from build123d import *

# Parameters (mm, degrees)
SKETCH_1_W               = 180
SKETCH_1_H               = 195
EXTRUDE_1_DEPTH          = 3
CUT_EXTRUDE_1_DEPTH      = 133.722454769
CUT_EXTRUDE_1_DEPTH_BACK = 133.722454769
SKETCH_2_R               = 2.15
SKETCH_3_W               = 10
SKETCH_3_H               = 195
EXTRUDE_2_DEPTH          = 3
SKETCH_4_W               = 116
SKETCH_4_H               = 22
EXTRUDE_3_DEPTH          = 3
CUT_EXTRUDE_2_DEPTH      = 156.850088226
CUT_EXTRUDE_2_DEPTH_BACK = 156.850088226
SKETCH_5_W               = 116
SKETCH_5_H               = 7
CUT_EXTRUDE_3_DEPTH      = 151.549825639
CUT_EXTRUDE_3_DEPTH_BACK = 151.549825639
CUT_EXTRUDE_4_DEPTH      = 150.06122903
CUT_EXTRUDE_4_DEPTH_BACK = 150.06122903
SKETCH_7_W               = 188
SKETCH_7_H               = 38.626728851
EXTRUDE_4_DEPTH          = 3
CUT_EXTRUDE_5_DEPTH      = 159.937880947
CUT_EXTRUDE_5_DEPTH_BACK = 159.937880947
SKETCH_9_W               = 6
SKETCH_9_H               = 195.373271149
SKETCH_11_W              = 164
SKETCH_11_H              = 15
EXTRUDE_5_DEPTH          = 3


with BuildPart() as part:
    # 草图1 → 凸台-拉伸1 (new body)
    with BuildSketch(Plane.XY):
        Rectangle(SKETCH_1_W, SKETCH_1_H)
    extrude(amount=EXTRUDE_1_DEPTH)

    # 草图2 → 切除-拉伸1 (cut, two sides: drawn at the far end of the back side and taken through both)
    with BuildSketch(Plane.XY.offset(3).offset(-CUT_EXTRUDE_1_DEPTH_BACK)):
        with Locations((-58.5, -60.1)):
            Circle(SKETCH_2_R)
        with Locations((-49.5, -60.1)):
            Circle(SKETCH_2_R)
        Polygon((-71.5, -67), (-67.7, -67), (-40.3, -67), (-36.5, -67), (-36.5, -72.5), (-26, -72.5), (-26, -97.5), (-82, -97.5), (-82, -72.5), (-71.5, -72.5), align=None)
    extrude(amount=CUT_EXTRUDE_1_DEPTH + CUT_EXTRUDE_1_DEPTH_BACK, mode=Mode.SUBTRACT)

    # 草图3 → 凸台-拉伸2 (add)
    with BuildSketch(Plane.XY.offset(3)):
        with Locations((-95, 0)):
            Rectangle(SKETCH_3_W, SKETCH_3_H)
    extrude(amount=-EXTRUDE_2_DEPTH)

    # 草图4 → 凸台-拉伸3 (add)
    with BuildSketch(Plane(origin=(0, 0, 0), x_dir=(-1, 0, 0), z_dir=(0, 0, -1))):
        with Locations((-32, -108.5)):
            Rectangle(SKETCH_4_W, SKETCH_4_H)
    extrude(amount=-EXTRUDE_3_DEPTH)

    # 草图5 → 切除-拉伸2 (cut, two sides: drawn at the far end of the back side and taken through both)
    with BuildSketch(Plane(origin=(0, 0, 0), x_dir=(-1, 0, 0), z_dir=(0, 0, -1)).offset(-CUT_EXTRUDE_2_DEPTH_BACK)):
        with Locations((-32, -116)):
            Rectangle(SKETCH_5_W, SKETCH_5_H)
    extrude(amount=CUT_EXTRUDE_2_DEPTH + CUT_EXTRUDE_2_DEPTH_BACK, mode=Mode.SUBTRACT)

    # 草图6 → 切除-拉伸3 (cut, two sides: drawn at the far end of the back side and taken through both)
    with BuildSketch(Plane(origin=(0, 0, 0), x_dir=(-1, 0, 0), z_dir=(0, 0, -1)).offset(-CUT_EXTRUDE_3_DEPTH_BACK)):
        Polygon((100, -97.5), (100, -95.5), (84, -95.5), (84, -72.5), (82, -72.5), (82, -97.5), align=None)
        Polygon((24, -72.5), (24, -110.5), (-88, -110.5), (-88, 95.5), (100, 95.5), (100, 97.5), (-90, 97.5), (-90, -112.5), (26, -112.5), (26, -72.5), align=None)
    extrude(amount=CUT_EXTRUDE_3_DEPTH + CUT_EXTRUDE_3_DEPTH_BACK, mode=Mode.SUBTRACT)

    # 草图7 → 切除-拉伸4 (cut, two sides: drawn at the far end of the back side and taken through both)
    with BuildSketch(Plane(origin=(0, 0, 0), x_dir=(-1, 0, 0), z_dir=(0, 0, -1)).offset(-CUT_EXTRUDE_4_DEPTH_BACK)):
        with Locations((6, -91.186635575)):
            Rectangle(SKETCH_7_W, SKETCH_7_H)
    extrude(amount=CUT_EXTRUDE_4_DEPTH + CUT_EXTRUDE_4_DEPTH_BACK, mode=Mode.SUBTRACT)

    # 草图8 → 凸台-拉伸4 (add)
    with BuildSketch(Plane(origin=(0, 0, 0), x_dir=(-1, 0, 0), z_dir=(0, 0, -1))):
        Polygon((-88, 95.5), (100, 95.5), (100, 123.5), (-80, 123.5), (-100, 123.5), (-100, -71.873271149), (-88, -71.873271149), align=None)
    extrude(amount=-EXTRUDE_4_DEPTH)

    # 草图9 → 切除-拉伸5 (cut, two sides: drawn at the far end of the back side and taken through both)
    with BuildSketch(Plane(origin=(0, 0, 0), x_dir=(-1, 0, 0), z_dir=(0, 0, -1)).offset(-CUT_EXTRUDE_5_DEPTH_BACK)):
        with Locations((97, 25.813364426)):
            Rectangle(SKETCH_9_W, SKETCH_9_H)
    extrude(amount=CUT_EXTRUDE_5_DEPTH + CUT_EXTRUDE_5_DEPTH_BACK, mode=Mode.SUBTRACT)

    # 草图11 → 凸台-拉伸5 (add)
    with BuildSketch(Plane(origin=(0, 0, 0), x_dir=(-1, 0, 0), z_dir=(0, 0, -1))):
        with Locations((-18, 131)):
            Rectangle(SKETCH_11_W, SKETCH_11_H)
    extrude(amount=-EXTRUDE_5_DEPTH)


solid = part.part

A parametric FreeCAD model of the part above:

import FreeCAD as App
import Part
import Sketcher
from FreeCAD import Vector
Q = App.Units.Quantity


def add_polygon(sketch, points):
    """Adds a closed chain of lines whose ends are joined by coincident constraints."""
    first, n = sketch.GeometryCount, len(points)
    for a, b in zip(points, points[1:] + points[:1]):
        sketch.addGeometry(Part.LineSegment(App.Vector(*a, 0), App.Vector(*b, 0)), False)
    for i in range(n):
        sketch.addConstraint(Sketcher.Constraint("Coincident", first + i, 2, first + (i + 1) % n, 1))

doc = App.newDocument("Part")
body = doc.addObject("PartDesign::Body", "Body")

# Sketch on XY plane
sketch1 = doc.addObject("Sketcher::SketchObject", "Sketch")
body.addObject(sketch1)
sketch1.AttachmentSupport = (doc.XY_Plane, [""])
sketch1.MapMode = "FlatFace"
add_polygon(sketch1, [(-90, 98), (-90, -98), (90, -98), (90, 98)])  # lines 0-3
sketch1.addConstraint(Sketcher.Constraint("Vertical", 0))
sketch1.addConstraint(Sketcher.Constraint("Horizontal", 1))
sketch1.addConstraint(Sketcher.Constraint("Vertical", 2))
sketch1.addConstraint(Sketcher.Constraint("Horizontal", 3))
sketch1.addConstraint(Sketcher.Constraint("Symmetric", 0, 2, 2, 2, -1, 1))
sketch1.addConstraint(Sketcher.Constraint("DistanceX", 1, 1, 1, 2, Q("180 mm")))
sketch1.addConstraint(Sketcher.Constraint("DistanceY", 0, 2, 0, 1, Q("195 mm")))
pad1 = doc.addObject("PartDesign::Pad", "Pad")
body.addObject(pad1)
pad1.Profile = sketch1
pad1.Length = 3

# Sketch on XY plane
sketch2 = doc.addObject("Sketcher::SketchObject", "Sketch001")
body.addObject(sketch2)
sketch2.AttachmentSupport = (doc.XY_Plane, [""])
sketch2.MapMode = "FlatFace"
sketch2.AttachmentOffset = App.Placement(Vector(0, 0, 3), App.Rotation())
sketch2.addGeometry(Part.Circle(Vector(-58.5, -60.1, 0), Vector(0, 0, 1), 2.1), False)  # 0
sketch2.addGeometry(Part.Circle(Vector(-49.5, -60.1, 0), Vector(0, 0, 1), 2.1), False)  # 1
add_polygon(sketch2, [(-36.5, -67), (-71.5, -67), (-71.5, -72.5), (-82, -72.5), (-82, -97.5), (-26, -97.5), (-26, -72.5), (-36.5, -72.5)])  # lines 2-9
sketch2.addConstraint(Sketcher.Constraint("Horizontal", 2))
sketch2.addConstraint(Sketcher.Constraint("Vertical", 3))
sketch2.addConstraint(Sketcher.Constraint("Horizontal", 4))
sketch2.addConstraint(Sketcher.Constraint("Vertical", 5))
sketch2.addConstraint(Sketcher.Constraint("Horizontal", 6))
sketch2.addConstraint(Sketcher.Constraint("Vertical", 7))
sketch2.addConstraint(Sketcher.Constraint("Horizontal", 8))
sketch2.addConstraint(Sketcher.Constraint("Vertical", 9))
sketch2.addConstraint(Sketcher.Constraint("Equal", 0, 1))
sketch2.addConstraint(Sketcher.Constraint("Horizontal", 0, 3, 1, 3))
sketch2.addConstraint(Sketcher.Constraint("Horizontal", 4, 2, 7, 2))
sketch2.addConstraint(Sketcher.Constraint("Equal", 4, 8))
sketch2.addConstraint(Sketcher.Constraint("Diameter", 0, Q("4.3 mm")))
sketch2.addConstraint(Sketcher.Constraint("DistanceX", 2, 2, 2, 1, Q("35 mm")))
sketch2.addConstraint(Sketcher.Constraint("DistanceX", 6, 1, 6, 2, Q("56 mm")))
sketch2.addConstraint(Sketcher.Constraint("DistanceY", 5, 2, 5, 1, Q("25 mm")))
sketch2.addConstraint(Sketcher.Constraint("DistanceY", 3, 2, 3, 1, Q("5.5 mm")))
sketch2.addConstraint(Sketcher.Constraint("DistanceY", 2, 2, -1, 1, Q("67 mm")))
sketch2.addConstraint(Sketcher.Constraint("DistanceX", 4, 2, -1, 1, Q("82 mm")))
sketch2.addConstraint(Sketcher.Constraint("DistanceX", 0, 3, 1, 3, Q("9 mm")))
sketch2.addConstraint(Sketcher.Constraint("DistanceX", 2, 2, 0, 3, Q("13 mm")))
sketch2.addConstraint(Sketcher.Constraint("DistanceY", 0, 3, -1, 1, Q("60.1 mm")))
pocket1 = doc.addObject("PartDesign::Pocket", "Pocket")
body.addObject(pocket1)
pocket1.Profile = sketch2
pocket1.Type = "ThroughAll"
pocket1.Midplane = True

# Sketch on XY plane
sketch3 = doc.addObject("Sketcher::SketchObject", "Sketch002")
body.addObject(sketch3)
sketch3.AttachmentSupport = (doc.XY_Plane, [""])
sketch3.MapMode = "FlatFace"
sketch3.AttachmentOffset = App.Placement(Vector(0, 0, 3), App.Rotation())
add_polygon(sketch3, [(-100, 98), (-100, -98), (-90, -98), (-90, 98)])  # lines 0-3
sketch3.addConstraint(Sketcher.Constraint("Vertical", 0))
sketch3.addConstraint(Sketcher.Constraint("Horizontal", 1))
sketch3.addConstraint(Sketcher.Constraint("Vertical", 2))
sketch3.addConstraint(Sketcher.Constraint("Horizontal", 3))
sketch3.addConstraint(Sketcher.Constraint("DistanceX", 1, 1, 1, 2, Q("10 mm")))
sketch3.addConstraint(Sketcher.Constraint("DistanceY", 0, 2, 0, 1, Q("195 mm")))
sketch3.addConstraint(Sketcher.Constraint("DistanceX", 0, 2, -1, 1, Q("100 mm")))
sketch3.addConstraint(Sketcher.Constraint("DistanceY", 0, 2, -1, 1, Q("97.5 mm")))
pad2 = doc.addObject("PartDesign::Pad", "Pad001")
body.addObject(pad2)
pad2.Profile = sketch3
pad2.Length = 3
pad2.Reversed = True

# Sketch on XY plane
sketch4 = doc.addObject("Sketcher::SketchObject", "Sketch003")
body.addObject(sketch4)
sketch4.AttachmentSupport = (doc.XY_Plane, [""])
sketch4.MapMode = "FlatFace"
add_polygon(sketch4, [(90, -98), (90, -120), (-26, -120), (-26, -98)])  # lines 0-3
sketch4.addConstraint(Sketcher.Constraint("Vertical", 0))
sketch4.addConstraint(Sketcher.Constraint("Horizontal", 1))
sketch4.addConstraint(Sketcher.Constraint("Vertical", 2))
sketch4.addConstraint(Sketcher.Constraint("Horizontal", 3))
sketch4.addConstraint(Sketcher.Constraint("DistanceX", 1, 2, 1, 1, Q("116 mm")))
sketch4.addConstraint(Sketcher.Constraint("DistanceY", 0, 2, 0, 1, Q("22 mm")))
sketch4.addConstraint(Sketcher.Constraint("DistanceX", -1, 1, 0, 2, Q("90 mm")))
sketch4.addConstraint(Sketcher.Constraint("DistanceY", 0, 2, -1, 1, Q("119.5 mm")))
pad3 = doc.addObject("PartDesign::Pad", "Pad002")
body.addObject(pad3)
pad3.Profile = sketch4
pad3.Length = 3

# Sketch on XY plane
sketch5 = doc.addObject("Sketcher::SketchObject", "Sketch004")
body.addObject(sketch5)
sketch5.AttachmentSupport = (doc.XY_Plane, [""])
sketch5.MapMode = "FlatFace"
add_polygon(sketch5, [(90, -112), (90, -120), (-26, -120), (-26, -112)])  # lines 0-3
sketch5.addConstraint(Sketcher.Constraint("Vertical", 0))
sketch5.addConstraint(Sketcher.Constraint("Horizontal", 1))
sketch5.addConstraint(Sketcher.Constraint("Vertical", 2))
sketch5.addConstraint(Sketcher.Constraint("Horizontal", 3))
sketch5.addConstraint(Sketcher.Constraint("DistanceX", 1, 2, 1, 1, Q("116 mm")))
sketch5.addConstraint(Sketcher.Constraint("DistanceY", 0, 2, 0, 1, Q("7 mm")))
sketch5.addConstraint(Sketcher.Constraint("DistanceX", -1, 1, 0, 2, Q("90 mm")))
sketch5.addConstraint(Sketcher.Constraint("DistanceY", 0, 2, -1, 1, Q("119.5 mm")))
pocket2 = doc.addObject("PartDesign::Pocket", "Pocket001")
body.addObject(pocket2)
pocket2.Profile = sketch5
pocket2.Type = "ThroughAll"
pocket2.Midplane = True

# Sketch on XY plane
sketch6 = doc.addObject("Sketcher::SketchObject", "Sketch005")
body.addObject(sketch6)
sketch6.AttachmentSupport = (doc.XY_Plane, [""])
sketch6.MapMode = "FlatFace"
add_polygon(sketch6, [(-100, -97.5), (-100, -95.5), (-84, -95.5), (-84, -72.5), (-82, -72.5), (-82, -97.5)])  # lines 0-5
add_polygon(sketch6, [(-24, -72.5), (-24, -110.5), (88, -110.5), (88, 95.5), (-100, 95.5), (-100, 97.5), (90, 97.5), (90, -112.5), (-26, -112.5), (-26, -72.5)])  # lines 6-15
sketch6.addConstraint(Sketcher.Constraint("Vertical", 0))
sketch6.addConstraint(Sketcher.Constraint("Horizontal", 1))
sketch6.addConstraint(Sketcher.Constraint("Vertical", 2))
sketch6.addConstraint(Sketcher.Constraint("Horizontal", 3))
sketch6.addConstraint(Sketcher.Constraint("Vertical", 4))
sketch6.addConstraint(Sketcher.Constraint("Horizontal", 5))
sketch6.addConstraint(Sketcher.Constraint("Vertical", 6))
sketch6.addConstraint(Sketcher.Constraint("Horizontal", 7))
sketch6.addConstraint(Sketcher.Constraint("Vertical", 8))
sketch6.addConstraint(Sketcher.Constraint("Horizontal", 9))
sketch6.addConstraint(Sketcher.Constraint("Vertical", 10))
sketch6.addConstraint(Sketcher.Constraint("Horizontal", 11))
sketch6.addConstraint(Sketcher.Constraint("Vertical", 12))
sketch6.addConstraint(Sketcher.Constraint("Horizontal", 13))
sketch6.addConstraint(Sketcher.Constraint("Vertical", 14))
sketch6.addConstraint(Sketcher.Constraint("Horizontal", 15))
sketch6.addConstraint(Sketcher.Constraint("Symmetric", 0, 2, 9, 2, -1))
sketch6.addConstraint(Sketcher.Constraint("Horizontal", 3, 2, 14, 2))
sketch6.addConstraint(Sketcher.Constraint("Equal", 3, 15))
sketch6.addConstraint(Sketcher.Constraint("Equal", 15, 0))
sketch6.addConstraint(Sketcher.Constraint("Equal", 0, 10))
sketch6.addConstraint(Sketcher.Constraint("DistanceX", 1, 1, 1, 2, Q("16 mm")))
sketch6.addConstraint(Sketcher.Constraint("DistanceX", 3, 1, 3, 2, Q("2 mm")))
sketch6.addConstraint(Sketcher.Constraint("DistanceX", 7, 1, 7, 2, Q("112 mm")))
sketch6.addConstraint(Sketcher.Constraint("DistanceX", 9, 2, 9, 1, Q("188 mm")))
sketch6.addConstraint(Sketcher.Constraint("DistanceX", 11, 1, 11, 2, Q("190 mm")))
sketch6.addConstraint(Sketcher.Constraint("DistanceY", 2, 1, 2, 2, Q("23 mm")))
sketch6.addConstraint(Sketcher.Constraint("DistanceY", 6, 2, 6, 1, Q("38 mm")))
sketch6.addConstraint(Sketcher.Constraint("DistanceY", 8, 1, 8, 2, Q("206 mm")))
sketch6.addConstraint(Sketcher.Constraint("DistanceY", 12, 2, 12, 1, Q("210 mm")))
sketch6.addConstraint(Sketcher.Constraint("DistanceX", 0, 2, -1, 1, Q("100 mm")))
pocket3 = doc.addObject("PartDesign::Pocket", "Pocket002")
body.addObject(pocket3)
pocket3.Profile = sketch6
pocket3.Type = "ThroughAll"
pocket3.Midplane = True

# Sketch on XY plane
sketch7 = doc.addObject("Sketcher::SketchObject", "Sketch006")
body.addObject(sketch7)
sketch7.AttachmentSupport = (doc.XY_Plane, [""])
sketch7.MapMode = "FlatFace"
add_polygon(sketch7, [(88, -72), (88, -110), (-100, -110), (-100, -72)])  # lines 0-3
sketch7.addConstraint(Sketcher.Constraint("Vertical", 0))
sketch7.addConstraint(Sketcher.Constraint("Horizontal", 1))
sketch7.addConstraint(Sketcher.Constraint("Vertical", 2))
sketch7.addConstraint(Sketcher.Constraint("Horizontal", 3))
sketch7.addConstraint(Sketcher.Constraint("DistanceX", 1, 2, 1, 1, Q("188 mm")))
sketch7.addConstraint(Sketcher.Constraint("DistanceX", -1, 1, 0, 2, Q("88 mm")))
sketch7.addConstraint(Sketcher.Constraint("DistanceY", 0, 2, -1, 1, Q("110.5 mm")))
sketch7.addConstraint(Sketcher.Constraint("DistanceY", 0, 2, 0, 1, Q("38.626729 mm")))
pocket4 = doc.addObject("PartDesign::Pocket", "Pocket003")
body.addObject(pocket4)
pocket4.Profile = sketch7
pocket4.Type = "ThroughAll"
pocket4.Midplane = True

# Sketch on XY plane
sketch8 = doc.addObject("Sketcher::SketchObject", "Sketch007")
body.addObject(sketch8)
sketch8.AttachmentSupport = (doc.XY_Plane, [""])
sketch8.MapMode = "FlatFace"
add_polygon(sketch8, [(88, 96), (-100, 96), (-100, 124), (100, 124), (100, -72), (88, -72)])  # lines 0-5
sketch8.addConstraint(Sketcher.Constraint("Horizontal", 0))
sketch8.addConstraint(Sketcher.Constraint("Vertical", 1))
sketch8.addConstraint(Sketcher.Constraint("Horizontal", 2))
sketch8.addConstraint(Sketcher.Constraint("Vertical", 3))
sketch8.addConstraint(Sketcher.Constraint("Horizontal", 4))
sketch8.addConstraint(Sketcher.Constraint("Vertical", 5))
sketch8.addConstraint(Sketcher.Constraint("DistanceX", 0, 2, 0, 1, Q("188 mm")))
sketch8.addConstraint(Sketcher.Constraint("DistanceX", 2, 1, 2, 2, Q("200 mm")))
sketch8.addConstraint(Sketcher.Constraint("DistanceY", 1, 1, 1, 2, Q("28 mm")))
sketch8.addConstraint(Sketcher.Constraint("DistanceX", 0, 2, -1, 1, Q("100 mm")))
sketch8.addConstraint(Sketcher.Constraint("DistanceY", -1, 1, 0, 2, Q("95.5 mm")))
sketch8.addConstraint(Sketcher.Constraint("DistanceY", 3, 2, 3, 1, Q("195.373271 mm")))
pad4 = doc.addObject("PartDesign::Pad", "Pad003")
body.addObject(pad4)
pad4.Profile = sketch8
pad4.Length = 3

# Sketch on XY plane
sketch9 = doc.addObject("Sketcher::SketchObject", "Sketch008")
body.addObject(sketch9)
sketch9.AttachmentSupport = (doc.XY_Plane, [""])
sketch9.MapMode = "FlatFace"
add_polygon(sketch9, [(-94, 124), (-94, -72), (-100, -72), (-100, 124)])  # lines 0-3
sketch9.addConstraint(Sketcher.Constraint("Vertical", 0))
sketch9.addConstraint(Sketcher.Constraint("Horizontal", 1))
sketch9.addConstraint(Sketcher.Constraint("Vertical", 2))
sketch9.addConstraint(Sketcher.Constraint("Horizontal", 3))
sketch9.addConstraint(Sketcher.Constraint("DistanceX", 1, 2, 1, 1, Q("6 mm")))
sketch9.addConstraint(Sketcher.Constraint("DistanceX", 0, 2, -1, 1, Q("94 mm")))
sketch9.addConstraint(Sketcher.Constraint("DistanceY", -1, 1, 2, 2, Q("123.5 mm")))
sketch9.addConstraint(Sketcher.Constraint("DistanceY", 0, 2, 0, 1, Q("195.373271 mm")))
pocket5 = doc.addObject("PartDesign::Pocket", "Pocket004")
body.addObject(pocket5)
pocket5.Profile = sketch9
pocket5.Type = "ThroughAll"
pocket5.Midplane = True

# Sketch on XY plane
sketch10 = doc.addObject("Sketcher::SketchObject", "Sketch009")
body.addObject(sketch10)
sketch10.AttachmentSupport = (doc.XY_Plane, [""])
sketch10.MapMode = "FlatFace"
add_polygon(sketch10, [(100, 138), (100, 124), (-64, 124), (-64, 138)])  # lines 0-3
sketch10.addConstraint(Sketcher.Constraint("Vertical", 0))
sketch10.addConstraint(Sketcher.Constraint("Horizontal", 1))
sketch10.addConstraint(Sketcher.Constraint("Vertical", 2))
sketch10.addConstraint(Sketcher.Constraint("Horizontal", 3))
sketch10.addConstraint(Sketcher.Constraint("DistanceX", 1, 2, 1, 1, Q("164 mm")))
sketch10.addConstraint(Sketcher.Constraint("DistanceY", 0, 2, 0, 1, Q("15 mm")))
sketch10.addConstraint(Sketcher.Constraint("DistanceX", -1, 1, 0, 2, Q("100 mm")))
sketch10.addConstraint(Sketcher.Constraint("DistanceY", -1, 1, 0, 2, Q("123.5 mm")))
pad5 = doc.addObject("PartDesign::Pad", "Pad004")
body.addObject(pad5)
pad5.Profile = sketch10
pad5.Length = 3

doc.recompute()
